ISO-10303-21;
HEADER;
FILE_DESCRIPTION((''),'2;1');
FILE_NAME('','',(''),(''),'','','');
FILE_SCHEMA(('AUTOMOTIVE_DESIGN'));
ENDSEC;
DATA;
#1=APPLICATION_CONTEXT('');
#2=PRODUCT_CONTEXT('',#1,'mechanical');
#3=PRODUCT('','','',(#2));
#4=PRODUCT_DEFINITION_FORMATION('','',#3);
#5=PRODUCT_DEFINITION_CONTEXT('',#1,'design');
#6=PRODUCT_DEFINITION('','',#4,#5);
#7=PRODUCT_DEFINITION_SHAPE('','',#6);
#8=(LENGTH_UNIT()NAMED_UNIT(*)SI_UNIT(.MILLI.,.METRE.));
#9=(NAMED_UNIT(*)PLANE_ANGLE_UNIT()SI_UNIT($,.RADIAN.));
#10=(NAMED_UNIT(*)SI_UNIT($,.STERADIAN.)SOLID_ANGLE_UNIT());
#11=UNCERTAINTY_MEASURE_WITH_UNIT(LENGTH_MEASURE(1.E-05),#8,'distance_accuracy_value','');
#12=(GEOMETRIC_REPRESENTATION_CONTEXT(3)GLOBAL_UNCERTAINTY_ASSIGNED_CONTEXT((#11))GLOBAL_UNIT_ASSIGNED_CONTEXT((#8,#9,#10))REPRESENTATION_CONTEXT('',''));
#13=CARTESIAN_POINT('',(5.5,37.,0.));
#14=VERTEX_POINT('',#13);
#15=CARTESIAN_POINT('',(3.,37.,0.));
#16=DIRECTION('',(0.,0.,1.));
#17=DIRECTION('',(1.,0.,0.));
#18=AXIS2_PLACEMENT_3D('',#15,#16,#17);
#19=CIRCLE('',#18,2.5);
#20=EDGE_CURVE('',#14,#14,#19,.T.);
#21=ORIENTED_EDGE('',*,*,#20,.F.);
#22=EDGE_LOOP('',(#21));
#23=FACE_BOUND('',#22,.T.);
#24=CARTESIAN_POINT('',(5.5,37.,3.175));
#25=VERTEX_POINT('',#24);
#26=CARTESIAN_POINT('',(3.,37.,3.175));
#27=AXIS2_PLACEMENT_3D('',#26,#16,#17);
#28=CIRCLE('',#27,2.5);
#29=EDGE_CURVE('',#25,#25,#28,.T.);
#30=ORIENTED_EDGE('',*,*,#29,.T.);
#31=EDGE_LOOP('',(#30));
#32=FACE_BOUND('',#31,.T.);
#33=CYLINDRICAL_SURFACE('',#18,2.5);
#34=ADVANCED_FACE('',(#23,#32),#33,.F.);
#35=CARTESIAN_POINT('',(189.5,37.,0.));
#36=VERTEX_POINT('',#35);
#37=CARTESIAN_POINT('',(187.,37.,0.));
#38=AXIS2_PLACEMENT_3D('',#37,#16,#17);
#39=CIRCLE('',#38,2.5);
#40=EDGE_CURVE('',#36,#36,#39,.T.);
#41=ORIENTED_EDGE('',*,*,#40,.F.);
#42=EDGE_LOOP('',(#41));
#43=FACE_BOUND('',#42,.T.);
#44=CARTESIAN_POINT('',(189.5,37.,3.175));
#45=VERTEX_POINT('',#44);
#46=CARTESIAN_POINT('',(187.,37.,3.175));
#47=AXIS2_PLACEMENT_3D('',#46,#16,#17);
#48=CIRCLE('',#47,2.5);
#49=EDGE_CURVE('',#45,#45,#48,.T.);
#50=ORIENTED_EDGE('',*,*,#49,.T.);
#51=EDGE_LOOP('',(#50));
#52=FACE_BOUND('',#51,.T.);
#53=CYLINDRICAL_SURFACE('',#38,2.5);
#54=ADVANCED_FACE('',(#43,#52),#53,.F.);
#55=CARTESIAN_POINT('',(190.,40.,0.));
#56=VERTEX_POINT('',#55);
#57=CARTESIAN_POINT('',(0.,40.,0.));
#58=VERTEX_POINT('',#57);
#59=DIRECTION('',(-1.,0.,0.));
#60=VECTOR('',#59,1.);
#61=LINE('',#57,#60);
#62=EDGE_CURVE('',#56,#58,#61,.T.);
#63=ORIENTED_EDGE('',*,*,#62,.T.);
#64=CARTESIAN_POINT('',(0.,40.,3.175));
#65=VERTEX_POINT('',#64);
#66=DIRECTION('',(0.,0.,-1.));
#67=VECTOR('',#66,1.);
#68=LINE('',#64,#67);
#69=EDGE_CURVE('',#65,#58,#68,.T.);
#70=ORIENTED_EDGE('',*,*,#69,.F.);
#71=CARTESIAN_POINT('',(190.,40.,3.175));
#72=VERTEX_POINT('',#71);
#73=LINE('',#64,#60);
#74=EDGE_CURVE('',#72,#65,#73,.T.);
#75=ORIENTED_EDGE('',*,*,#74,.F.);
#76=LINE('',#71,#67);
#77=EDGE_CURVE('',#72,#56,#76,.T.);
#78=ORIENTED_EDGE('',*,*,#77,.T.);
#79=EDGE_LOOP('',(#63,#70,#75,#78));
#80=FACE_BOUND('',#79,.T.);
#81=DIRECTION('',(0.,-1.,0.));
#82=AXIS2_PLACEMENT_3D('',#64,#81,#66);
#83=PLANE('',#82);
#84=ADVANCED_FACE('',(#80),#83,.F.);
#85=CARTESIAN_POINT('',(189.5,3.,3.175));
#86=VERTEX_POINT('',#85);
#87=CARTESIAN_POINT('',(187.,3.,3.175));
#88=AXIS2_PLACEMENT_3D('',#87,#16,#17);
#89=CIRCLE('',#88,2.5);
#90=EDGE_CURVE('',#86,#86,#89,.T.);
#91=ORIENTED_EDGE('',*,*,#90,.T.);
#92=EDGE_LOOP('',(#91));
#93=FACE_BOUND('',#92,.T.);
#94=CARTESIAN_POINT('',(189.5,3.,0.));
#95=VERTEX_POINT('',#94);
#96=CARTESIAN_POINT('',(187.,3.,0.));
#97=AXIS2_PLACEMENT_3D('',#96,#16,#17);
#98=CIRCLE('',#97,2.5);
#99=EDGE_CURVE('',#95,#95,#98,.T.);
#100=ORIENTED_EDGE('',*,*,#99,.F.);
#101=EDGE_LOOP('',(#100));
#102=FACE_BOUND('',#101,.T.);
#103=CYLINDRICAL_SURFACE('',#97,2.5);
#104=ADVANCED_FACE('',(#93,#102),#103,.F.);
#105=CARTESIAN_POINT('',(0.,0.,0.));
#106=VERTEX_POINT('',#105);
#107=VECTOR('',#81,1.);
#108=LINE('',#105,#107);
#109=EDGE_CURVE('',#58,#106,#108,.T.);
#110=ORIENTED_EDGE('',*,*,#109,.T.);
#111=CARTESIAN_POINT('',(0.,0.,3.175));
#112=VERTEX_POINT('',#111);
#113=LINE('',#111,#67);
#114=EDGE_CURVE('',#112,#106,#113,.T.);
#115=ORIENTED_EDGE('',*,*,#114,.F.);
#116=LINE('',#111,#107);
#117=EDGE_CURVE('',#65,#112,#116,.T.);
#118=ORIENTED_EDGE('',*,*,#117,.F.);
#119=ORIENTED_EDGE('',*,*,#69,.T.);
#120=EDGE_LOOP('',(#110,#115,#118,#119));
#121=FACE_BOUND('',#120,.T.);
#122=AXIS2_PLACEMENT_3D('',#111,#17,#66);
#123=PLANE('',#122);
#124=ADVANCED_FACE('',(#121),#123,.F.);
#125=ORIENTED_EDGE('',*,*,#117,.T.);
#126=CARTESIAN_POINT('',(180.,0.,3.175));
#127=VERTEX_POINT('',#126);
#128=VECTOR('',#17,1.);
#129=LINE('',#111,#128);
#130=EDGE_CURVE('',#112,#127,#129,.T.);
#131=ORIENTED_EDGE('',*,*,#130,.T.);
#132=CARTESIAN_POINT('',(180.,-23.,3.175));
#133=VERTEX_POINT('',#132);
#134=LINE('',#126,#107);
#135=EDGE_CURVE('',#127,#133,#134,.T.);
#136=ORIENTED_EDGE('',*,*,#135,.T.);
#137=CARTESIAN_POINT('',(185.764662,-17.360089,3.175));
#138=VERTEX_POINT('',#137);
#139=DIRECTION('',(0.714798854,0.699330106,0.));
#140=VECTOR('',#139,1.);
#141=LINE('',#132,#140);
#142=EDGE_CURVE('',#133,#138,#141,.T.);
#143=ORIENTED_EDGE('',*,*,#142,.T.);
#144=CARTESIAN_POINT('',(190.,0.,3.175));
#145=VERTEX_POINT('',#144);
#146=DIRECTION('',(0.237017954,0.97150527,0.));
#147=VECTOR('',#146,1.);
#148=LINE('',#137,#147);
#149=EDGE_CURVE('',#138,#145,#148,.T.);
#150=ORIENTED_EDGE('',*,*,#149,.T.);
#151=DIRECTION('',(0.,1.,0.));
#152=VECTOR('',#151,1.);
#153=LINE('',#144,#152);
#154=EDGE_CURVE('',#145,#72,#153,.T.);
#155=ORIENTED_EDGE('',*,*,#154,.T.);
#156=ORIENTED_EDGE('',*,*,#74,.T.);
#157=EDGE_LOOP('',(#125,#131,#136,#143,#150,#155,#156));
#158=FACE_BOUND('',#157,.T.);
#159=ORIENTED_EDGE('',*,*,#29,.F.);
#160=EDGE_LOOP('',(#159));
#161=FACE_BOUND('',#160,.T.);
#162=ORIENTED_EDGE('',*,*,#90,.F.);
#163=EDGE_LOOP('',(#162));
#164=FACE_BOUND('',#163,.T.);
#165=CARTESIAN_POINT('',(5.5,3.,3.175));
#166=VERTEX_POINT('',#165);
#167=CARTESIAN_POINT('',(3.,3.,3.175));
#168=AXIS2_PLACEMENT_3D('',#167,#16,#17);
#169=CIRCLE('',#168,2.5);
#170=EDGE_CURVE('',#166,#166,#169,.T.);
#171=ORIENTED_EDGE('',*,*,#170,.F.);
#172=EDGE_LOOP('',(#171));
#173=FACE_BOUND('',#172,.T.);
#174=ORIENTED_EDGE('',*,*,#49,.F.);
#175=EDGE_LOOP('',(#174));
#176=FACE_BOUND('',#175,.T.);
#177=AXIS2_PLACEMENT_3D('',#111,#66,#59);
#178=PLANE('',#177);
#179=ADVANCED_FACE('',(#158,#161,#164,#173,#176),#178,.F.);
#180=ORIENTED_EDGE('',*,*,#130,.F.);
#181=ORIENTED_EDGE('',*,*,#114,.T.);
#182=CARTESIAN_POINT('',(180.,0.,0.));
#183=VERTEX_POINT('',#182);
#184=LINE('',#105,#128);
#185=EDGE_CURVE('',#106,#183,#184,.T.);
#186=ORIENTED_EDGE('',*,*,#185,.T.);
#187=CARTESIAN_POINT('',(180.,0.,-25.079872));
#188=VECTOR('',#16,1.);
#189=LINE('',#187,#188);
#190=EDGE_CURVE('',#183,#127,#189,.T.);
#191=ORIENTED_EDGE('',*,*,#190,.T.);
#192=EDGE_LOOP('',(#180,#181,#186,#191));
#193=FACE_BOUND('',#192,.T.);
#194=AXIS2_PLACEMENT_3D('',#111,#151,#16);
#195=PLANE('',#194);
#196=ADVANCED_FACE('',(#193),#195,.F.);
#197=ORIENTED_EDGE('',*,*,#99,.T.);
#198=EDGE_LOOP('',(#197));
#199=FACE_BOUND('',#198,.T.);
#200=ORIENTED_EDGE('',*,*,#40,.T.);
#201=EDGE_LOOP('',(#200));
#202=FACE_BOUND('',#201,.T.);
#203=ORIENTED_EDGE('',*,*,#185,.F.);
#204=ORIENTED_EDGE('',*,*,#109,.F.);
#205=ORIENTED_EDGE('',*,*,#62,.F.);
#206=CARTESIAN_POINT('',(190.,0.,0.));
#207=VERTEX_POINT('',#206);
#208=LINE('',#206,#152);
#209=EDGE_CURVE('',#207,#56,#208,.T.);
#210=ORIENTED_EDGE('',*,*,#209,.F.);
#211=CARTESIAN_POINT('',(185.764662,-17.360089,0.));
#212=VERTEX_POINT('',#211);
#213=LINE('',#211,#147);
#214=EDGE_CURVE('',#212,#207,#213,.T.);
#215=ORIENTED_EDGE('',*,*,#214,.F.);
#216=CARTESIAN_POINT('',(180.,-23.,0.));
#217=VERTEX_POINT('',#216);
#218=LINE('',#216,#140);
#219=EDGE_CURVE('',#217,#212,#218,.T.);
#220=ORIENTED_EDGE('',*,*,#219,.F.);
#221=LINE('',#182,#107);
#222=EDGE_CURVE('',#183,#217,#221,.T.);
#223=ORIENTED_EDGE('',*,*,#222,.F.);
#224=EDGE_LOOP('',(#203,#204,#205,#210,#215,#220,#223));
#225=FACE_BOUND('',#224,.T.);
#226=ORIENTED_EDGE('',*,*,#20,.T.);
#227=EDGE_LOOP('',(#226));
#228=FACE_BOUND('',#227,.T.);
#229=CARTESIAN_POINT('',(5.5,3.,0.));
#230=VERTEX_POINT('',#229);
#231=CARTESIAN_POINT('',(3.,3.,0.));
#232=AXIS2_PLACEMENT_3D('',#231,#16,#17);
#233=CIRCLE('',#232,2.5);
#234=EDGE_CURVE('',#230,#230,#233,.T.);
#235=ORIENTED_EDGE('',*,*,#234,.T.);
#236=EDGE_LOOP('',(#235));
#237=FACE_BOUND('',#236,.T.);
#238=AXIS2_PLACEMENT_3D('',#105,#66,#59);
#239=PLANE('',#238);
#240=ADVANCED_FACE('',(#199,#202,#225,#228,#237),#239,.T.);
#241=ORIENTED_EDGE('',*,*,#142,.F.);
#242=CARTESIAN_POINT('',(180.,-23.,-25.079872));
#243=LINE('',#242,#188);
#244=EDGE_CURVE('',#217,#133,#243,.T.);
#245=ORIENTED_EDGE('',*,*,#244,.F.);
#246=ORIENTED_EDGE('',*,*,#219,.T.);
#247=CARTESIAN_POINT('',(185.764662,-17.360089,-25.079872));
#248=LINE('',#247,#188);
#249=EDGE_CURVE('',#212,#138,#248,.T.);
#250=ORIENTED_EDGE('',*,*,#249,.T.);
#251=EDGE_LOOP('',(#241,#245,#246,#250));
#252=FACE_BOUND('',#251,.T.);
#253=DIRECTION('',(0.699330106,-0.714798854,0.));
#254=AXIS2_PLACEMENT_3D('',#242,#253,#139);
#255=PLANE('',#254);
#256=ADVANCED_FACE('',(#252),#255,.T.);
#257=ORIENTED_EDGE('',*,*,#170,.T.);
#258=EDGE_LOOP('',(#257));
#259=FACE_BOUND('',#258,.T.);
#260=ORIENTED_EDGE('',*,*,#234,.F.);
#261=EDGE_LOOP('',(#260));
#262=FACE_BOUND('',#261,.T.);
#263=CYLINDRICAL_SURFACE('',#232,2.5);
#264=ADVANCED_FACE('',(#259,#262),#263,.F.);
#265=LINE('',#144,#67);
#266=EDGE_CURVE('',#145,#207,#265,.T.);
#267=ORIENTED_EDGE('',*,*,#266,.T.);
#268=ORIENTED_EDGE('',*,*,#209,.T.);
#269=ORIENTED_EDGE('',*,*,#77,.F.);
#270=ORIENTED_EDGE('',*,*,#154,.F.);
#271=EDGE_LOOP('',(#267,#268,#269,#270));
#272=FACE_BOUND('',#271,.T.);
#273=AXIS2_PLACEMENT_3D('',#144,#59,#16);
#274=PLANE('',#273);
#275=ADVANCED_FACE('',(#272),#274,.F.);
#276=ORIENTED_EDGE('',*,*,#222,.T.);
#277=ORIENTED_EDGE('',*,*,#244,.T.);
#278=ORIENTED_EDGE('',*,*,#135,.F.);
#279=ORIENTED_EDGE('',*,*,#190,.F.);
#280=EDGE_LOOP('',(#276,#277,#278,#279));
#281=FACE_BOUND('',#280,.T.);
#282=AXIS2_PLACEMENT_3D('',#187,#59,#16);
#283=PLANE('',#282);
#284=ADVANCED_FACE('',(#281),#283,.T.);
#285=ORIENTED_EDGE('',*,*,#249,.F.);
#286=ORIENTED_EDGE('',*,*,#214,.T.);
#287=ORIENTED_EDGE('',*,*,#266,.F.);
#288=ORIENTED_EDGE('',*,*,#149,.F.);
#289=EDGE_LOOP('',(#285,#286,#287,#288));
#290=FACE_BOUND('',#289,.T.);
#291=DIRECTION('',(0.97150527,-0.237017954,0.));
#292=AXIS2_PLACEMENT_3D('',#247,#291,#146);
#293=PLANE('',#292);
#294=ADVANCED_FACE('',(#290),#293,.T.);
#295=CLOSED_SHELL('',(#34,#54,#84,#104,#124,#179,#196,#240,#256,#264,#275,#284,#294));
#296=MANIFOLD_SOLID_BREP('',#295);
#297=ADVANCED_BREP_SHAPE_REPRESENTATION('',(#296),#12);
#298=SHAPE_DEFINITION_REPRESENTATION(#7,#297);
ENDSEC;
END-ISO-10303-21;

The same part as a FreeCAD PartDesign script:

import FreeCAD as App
import Part
import Sketcher
from FreeCAD import Vector
Q = App.Units.Quantity


def add_polygon(sketch, points):
    """Adds a closed chain of lines whose ends are joined by coincident constraints."""
    first, n = sketch.GeometryCount, len(points)
    for a, b in zip(points, points[1:] + points[:1]):
        sketch.addGeometry(Part.LineSegment(App.Vector(*a, 0), App.Vector(*b, 0)), False)
    for i in range(n):
        sketch.addConstraint(Sketcher.Constraint("Coincident", first + i, 2, first + (i + 1) % n, 1))

doc = App.newDocument("Part")
body = doc.addObject("PartDesign::Body", "Body")

# Sketch on XY plane
sketch1 = doc.addObject("Sketcher::SketchObject", "Sketch")
body.addObject(sketch1)
sketch1.AttachmentSupport = (doc.XY_Plane, [""])
sketch1.MapMode = "FlatFace"
add_polygon(sketch1, [(0, 40), (0, 0), (190, 0), (190, 40)])  # lines 0-3
sketch1.addConstraint(Sketcher.Constraint("Vertical", 0))
sketch1.addConstraint(Sketcher.Constraint("Horizontal", 1))
sketch1.addConstraint(Sketcher.Constraint("Vertical", 2))
sketch1.addConstraint(Sketcher.Constraint("Horizontal", 3))
sketch1.addConstraint(Sketcher.Constraint("Coincident", 0, 2, -1, 1))
sketch1.addConstraint(Sketcher.Constraint("DistanceX", 1, 1, 1, 2, Q("190 mm")))
sketch1.addConstraint(Sketcher.Constraint("DistanceY", 0, 2, 0, 1, Q("40 mm")))
pad1 = doc.addObject("PartDesign::Pad", "Pad")
body.addObject(pad1)
pad1.Profile = sketch1
pad1.Length = 3.175

# Sketch on XY plane
sketch2 = doc.addObject("Sketcher::SketchObject", "Sketch001")
body.addObject(sketch2)
sketch2.AttachmentSupport = (doc.XY_Plane, [""])
sketch2.MapMode = "FlatFace"
sketch2.AttachmentOffset = App.Placement(Vector(0, 0, 3.175), App.Rotation())
sketch2.addGeometry(Part.Circle(Vector(3, 37, 0), Vector(0, 0, 1), 2.5), False)
sketch2.addGeometry(Part.Circle(Vector(3, 3, 0), Vector(0, 0, 1), 2.5), False)
sketch2.addGeometry(Part.Circle(Vector(187, 37, 0), Vector(0, 0, 1), 2.5), False)
sketch2.addGeometry(Part.Circle(Vector(187, 3, 0), Vector(0, 0, 1), 2.5), False)
sketch2.addConstraint(Sketcher.Constraint("Equal", 0, 1))
sketch2.addConstraint(Sketcher.Constraint("Equal", 1, 2))
sketch2.addConstraint(Sketcher.Constraint("Equal", 2, 3))
sketch2.addConstraint(Sketcher.Constraint("Horizontal", 0, 3, 2, 3))
sketch2.addConstraint(Sketcher.Constraint("Horizontal", 1, 3, 3, 3))
sketch2.addConstraint(Sketcher.Constraint("Vertical", 0, 3, 1, 3))
sketch2.addConstraint(Sketcher.Constraint("Vertical", 2, 3, 3, 3))
sketch2.addConstraint(Sketcher.Constraint("Diameter", 0, Q("5 mm")))
sketch2.addConstraint(Sketcher.Constraint("DistanceX", -1, 1, 0, 3, Q("3 mm")))
sketch2.addConstraint(Sketcher.Constraint("DistanceY", -1, 1, 0, 3, Q("37 mm")))
sketch2.addConstraint(Sketcher.Constraint("DistanceY", -1, 1, 1, 3, Q("3 mm")))
sketch2.addConstraint(Sketcher.Constraint("DistanceX", -1, 1, 2, 3, Q("187 mm")))
pocket1 = doc.addObject("PartDesign::Pocket", "Pocket")
body.addObject(pocket1)
pocket1.Profile = sketch2
pocket1.Type = "ThroughAll"

# Sketch on XY plane
sketch3 = doc.addObject("Sketcher::SketchObject", "Sketch002")
body.addObject(sketch3)
sketch3.AttachmentSupport = (doc.XY_Plane, [""])
sketch3.MapMode = "FlatFace"
sketch3.AttachmentOffset = App.Placement(Vector(0, 0, 3.175), App.Rotation())
add_polygon(sketch3, [(180, -23), (186, -17), (190, 0), (180, 0)])  # lines 0-3
sketch3.addConstraint(Sketcher.Constraint("Horizontal", 2))
sketch3.addConstraint(Sketcher.Constraint("Vertical", 3))
sketch3.addConstraint(Sketcher.Constraint("PointOnObject", 1, 2, -1))
sketch3.addConstraint(Sketcher.Constraint("DistanceX", 2, 2, 2, 1, Q("10 mm")))
sketch3.addConstraint(Sketcher.Constraint("DistanceY", 3, 2, 3, 1, Q("23 mm")))
sketch3.addConstraint(Sketcher.Constraint("DistanceX", -1, 1, 1, 2, Q("190 mm")))
sketch3.addConstraint(Sketcher.Constraint("Distance", 1, Q("17.869269 mm")))
sketch3.addConstraint(Sketcher.Constraint("DistanceY", 0, 2, -1, 1, Q("17.360089 mm")))
pad2 = doc.addObject("PartDesign::Pad", "Pad001")
body.addObject(pad2)
pad2.Profile = sketch3
pad2.Length = 3.175
pad2.Reversed = True

doc.recompute()
